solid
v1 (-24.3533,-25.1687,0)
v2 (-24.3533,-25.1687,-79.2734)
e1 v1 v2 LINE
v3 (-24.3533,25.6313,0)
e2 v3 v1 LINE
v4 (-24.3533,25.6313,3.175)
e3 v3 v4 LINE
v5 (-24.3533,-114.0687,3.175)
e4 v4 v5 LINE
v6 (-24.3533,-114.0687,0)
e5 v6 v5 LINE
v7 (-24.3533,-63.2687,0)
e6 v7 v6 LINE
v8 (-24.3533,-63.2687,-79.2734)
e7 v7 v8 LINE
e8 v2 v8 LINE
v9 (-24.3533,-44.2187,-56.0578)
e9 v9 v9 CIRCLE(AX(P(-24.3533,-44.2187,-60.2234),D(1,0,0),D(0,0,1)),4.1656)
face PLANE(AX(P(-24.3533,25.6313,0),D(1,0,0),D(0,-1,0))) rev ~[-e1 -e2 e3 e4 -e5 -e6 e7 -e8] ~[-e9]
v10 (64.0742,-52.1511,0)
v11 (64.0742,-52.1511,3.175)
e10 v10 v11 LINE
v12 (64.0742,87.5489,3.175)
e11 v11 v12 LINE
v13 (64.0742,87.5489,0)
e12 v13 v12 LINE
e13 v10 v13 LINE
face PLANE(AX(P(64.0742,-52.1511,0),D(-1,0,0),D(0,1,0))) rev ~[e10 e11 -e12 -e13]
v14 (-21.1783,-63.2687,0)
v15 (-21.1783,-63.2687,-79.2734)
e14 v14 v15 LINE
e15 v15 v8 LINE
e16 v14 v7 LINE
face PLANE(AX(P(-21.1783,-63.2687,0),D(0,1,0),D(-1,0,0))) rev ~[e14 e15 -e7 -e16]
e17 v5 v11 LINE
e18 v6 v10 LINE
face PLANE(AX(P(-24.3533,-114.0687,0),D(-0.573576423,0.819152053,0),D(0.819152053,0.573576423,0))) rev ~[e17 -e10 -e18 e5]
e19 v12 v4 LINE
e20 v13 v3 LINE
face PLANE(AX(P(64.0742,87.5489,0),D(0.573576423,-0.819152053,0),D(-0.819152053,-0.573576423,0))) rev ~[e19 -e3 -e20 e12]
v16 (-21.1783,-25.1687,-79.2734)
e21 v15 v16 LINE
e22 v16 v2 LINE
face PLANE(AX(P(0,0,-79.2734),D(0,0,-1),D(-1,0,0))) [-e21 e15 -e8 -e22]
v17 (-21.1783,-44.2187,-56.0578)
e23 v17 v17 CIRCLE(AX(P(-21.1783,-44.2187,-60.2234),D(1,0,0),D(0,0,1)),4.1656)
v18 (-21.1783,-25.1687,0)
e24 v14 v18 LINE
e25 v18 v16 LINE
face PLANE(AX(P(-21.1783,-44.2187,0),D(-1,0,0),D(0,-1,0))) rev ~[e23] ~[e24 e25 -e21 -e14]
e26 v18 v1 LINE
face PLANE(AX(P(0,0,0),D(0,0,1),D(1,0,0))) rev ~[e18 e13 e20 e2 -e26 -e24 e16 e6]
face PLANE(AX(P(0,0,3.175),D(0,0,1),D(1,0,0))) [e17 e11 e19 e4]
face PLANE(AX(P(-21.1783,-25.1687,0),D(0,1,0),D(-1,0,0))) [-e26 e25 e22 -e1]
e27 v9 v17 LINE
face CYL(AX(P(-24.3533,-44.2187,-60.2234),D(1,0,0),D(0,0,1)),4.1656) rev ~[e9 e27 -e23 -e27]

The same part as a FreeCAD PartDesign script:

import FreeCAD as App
import Part
import Sketcher
from FreeCAD import Vector
Q = App.Units.Quantity

doc = App.newDocument("Part")
body = doc.addObject("PartDesign::Body", "Body")

sketch1 = doc.addObject("Sketcher::SketchObject", "Sketch")
body.addObject(sketch1)
sketch1.AttachmentSupport = (doc.XY_Plane, [""])
sketch1.MapMode = "FlatFace"
sketch1.addGeometry([
    Part.LineSegment(Vector(64.0742, 87.5489, 0), Vector(-24.3533, 25.6313, 0)),
    Part.LineSegment(Vector(-24.3533, 25.6313, 0), Vector(-24.3533, -114.0687, 0)),
    Part.LineSegment(Vector(-24.3533, -114.0687, 0), Vector(64.0742, -52.1511, 0)),
    Part.LineSegment(Vector(64.0742, -52.1511, 0), Vector(64.0742, 87.5489, 0)),
], False)
sketch1.addConstraint([
    Sketcher.Constraint("Coincident", 0, 2, 1, 1),
    Sketcher.Constraint("Coincident", 1, 2, 2, 1),
    Sketcher.Constraint("Coincident", 2, 2, 3, 1),
    Sketcher.Constraint("Coincident", 3, 2, 0, 1),
    Sketcher.Constraint("Vertical", 1),
    Sketcher.Constraint("Vertical", 3),
    Sketcher.Constraint("Parallel", 0, 2),
    Sketcher.Constraint("DistanceY", 1, 2, 1, 1, Q("5.5 in")),
    Sketcher.Constraint("Angle", 2, Q("35 deg")),
    Sketcher.Constraint("Distance", 0, Q("4.25 in")),
    Sketcher.Constraint("DistanceX", 0, 2, -1, 1, Q("0.9588 in")),
    Sketcher.Constraint("DistanceY", -1, 1, 0, 2, Q("1.0091 in")),
])
pad1 = doc.addObject("PartDesign::Pad", "Pad")
body.addObject(pad1)
pad1.Profile = sketch1
pad1.Length = Q("0.125 in")

sketch2 = doc.addObject("Sketcher::SketchObject", "Sketch001")
body.addObject(sketch2)
sketch2.AttachmentSupport = (doc.XY_Plane, [""])
sketch2.MapMode = "FlatFace"
sketch2.addGeometry([
    Part.LineSegment(Vector(-21.1783, -25.1687, 0), Vector(-21.1783, -63.2687, 0)),
    Part.LineSegment(Vector(-21.1783, -63.2687, 0), Vector(-24.3533, -63.2687, 0)),
    Part.LineSegment(Vector(-24.3533, -63.2687, 0), Vector(-24.3533, -25.1687, 0)),
    Part.LineSegment(Vector(-24.3533, -25.1687, 0), Vector(-21.1783, -25.1687, 0)),
], False)
sketch2.addConstraint([
    Sketcher.Constraint("Coincident", 0, 2, 1, 1),
    Sketcher.Constraint("Coincident", 1, 2, 2, 1),
    Sketcher.Constraint("Coincident", 2, 2, 3, 1),
    Sketcher.Constraint("Coincident", 3, 2, 0, 1),
    Sketcher.Constraint("Vertical", 0),
    Sketcher.Constraint("Horizontal", 1),
    Sketcher.Constraint("Vertical", 2),
    Sketcher.Constraint("Horizontal", 3),
    Sketcher.Constraint("DistanceY", 0, 2, 0, 1, Q("1.5 in")),
    Sketcher.Constraint("DistanceX", 1, 2, 1, 1, Q("0.125 in")),
    Sketcher.Constraint("DistanceX", 0, 2, -1, 1, Q("0.8338 in")),
    Sketcher.Constraint("DistanceY", 0, 2, -1, 1, Q("2.4909 in")),
])
pad2 = doc.addObject("PartDesign::Pad", "Pad001")
body.addObject(pad2)
pad2.Profile = sketch2
pad2.Length = Q("3.121 in")
pad2.Reversed = True

sketch3 = doc.addObject("Sketcher::SketchObject", "Sketch002")
body.addObject(sketch3)
sketch3.AttachmentSupport = (doc.YZ_Plane, [""])
sketch3.MapMode = "FlatFace"
sketch3.AttachmentOffset = App.Placement(Vector(0, 0, -0.9587913 * 25.4), App.Rotation())
sketch3.addGeometry(Part.Circle(Vector(-44.2187, -60.2234, 0), Vector(0, 0, 1), 4.1656), False)
sketch3.addConstraint([
    Sketcher.Constraint("Diameter", 0, Q("0.328 in")),
    Sketcher.Constraint("DistanceY", 0, 3, -1, 1, Q("2.371 in")),
    Sketcher.Constraint("DistanceX", 0, 3, -1, 1, Q("1.7409 in")),
])
doc.recompute()
hole = doc.addObject("PartDesign::Hole", "Hole")
body.addObject(hole)
hole.Profile = sketch3
hole.ThreadType = "None"
hole.Diameter = Q("0.328 in")
hole.DepthType = "ThroughAll"
hole.Reversed = True

doc.recompute()
